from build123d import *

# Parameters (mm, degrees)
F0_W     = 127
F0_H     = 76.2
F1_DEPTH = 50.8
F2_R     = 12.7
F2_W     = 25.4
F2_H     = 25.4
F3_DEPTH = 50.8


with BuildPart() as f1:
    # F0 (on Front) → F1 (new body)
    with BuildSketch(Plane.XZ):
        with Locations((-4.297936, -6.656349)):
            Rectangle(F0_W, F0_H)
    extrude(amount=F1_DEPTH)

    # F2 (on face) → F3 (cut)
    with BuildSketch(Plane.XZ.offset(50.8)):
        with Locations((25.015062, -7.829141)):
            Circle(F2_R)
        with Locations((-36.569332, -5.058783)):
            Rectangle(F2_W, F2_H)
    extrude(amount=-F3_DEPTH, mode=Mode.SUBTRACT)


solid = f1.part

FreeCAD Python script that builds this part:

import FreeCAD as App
import Part
import Sketcher
Q = App.Units.Quantity

doc = App.newDocument("Part")
params = doc.addObject("Spreadsheet::Sheet", "Params")
for row, (alias, value) in enumerate([
    ("sketch1_width", "5 in"),
    ("sketch1_height", "3 in"),
    ("pad1_length", "2 in"),
    ("sketch2_diameter", "1 in"),
    ("sketch2_width", "1 in"),
    ("pocket1_length", "2 in"),
], start=1):
    params.set(f"A{row}", alias)
    params.set(f"B{row}", "=" + value)
    params.setAlias(f"B{row}", alias)

body = doc.addObject("PartDesign::Body", "Body")

sketch1 = doc.addObject("Sketcher::SketchObject", "Sketch")
body.addObject(sketch1)
sketch1.AttachmentSupport = (doc.XZ_Plane, [""])
sketch1.MapMode = "FlatFace"
sketch1.addGeometry([
    Part.LineSegment(App.Vector(-67.797936, 31.443651, 0), App.Vector(-67.797936, -44.756349, 0)),
    Part.LineSegment(App.Vector(-67.797936, -44.756349, 0), App.Vector(59.202064, -44.756349, 0)),
    Part.LineSegment(App.Vector(59.202064, -44.756349, 0), App.Vector(59.202064, 31.443651, 0)),
    Part.LineSegment(App.Vector(59.202064, 31.443651, 0), App.Vector(-67.797936, 31.443651, 0)),
], False)
sketch1.addConstraint([
    Sketcher.Constraint("Coincident", 0, 2, 1, 1),
    Sketcher.Constraint("Coincident", 1, 2, 2, 1),
    Sketcher.Constraint("Coincident", 2, 2, 3, 1),
    Sketcher.Constraint("Coincident", 3, 2, 0, 1),
    Sketcher.Constraint("Vertical", 0),
    Sketcher.Constraint("Horizontal", 1),
    Sketcher.Constraint("Vertical", 2),
    Sketcher.Constraint("Horizontal", 3),
    Sketcher.Constraint("DistanceX", 1, 1, 1, 2, Q("5 in")),
    Sketcher.Constraint("DistanceY", 0, 2, 0, 1, Q("3 in")),
    Sketcher.Constraint("DistanceY", 0, 2, -1, 1, Q("44.756349 mm")),
    Sketcher.Constraint("DistanceX", 0, 2, -1, 1, Q("67.797936 mm")),
])
sketch1.setExpression("Constraints[8]", "Params.sketch1_width")
sketch1.setExpression("Constraints[9]", "Params.sketch1_height")
pad1 = doc.addObject("PartDesign::Pad", "Pad")
body.addObject(pad1)
pad1.Profile = sketch1
pad1.setExpression("Length", "Params.pad1_length")

sketch2 = doc.addObject("Sketcher::SketchObject", "Sketch001")
body.addObject(sketch2)
sketch2.AttachmentSupport = (doc.XZ_Plane, [""])
sketch2.MapMode = "FlatFace"
sketch2.AttachmentOffset = App.Placement(App.Vector(0, 0, 2 * 25.4), App.Rotation())
sketch2.addGeometry([
    Part.Circle(App.Vector(25.015062, -7.829141, 0), App.Vector(0, 0, 1), 12.7),
    Part.LineSegment(App.Vector(-49.269332, 7.641217, 0), App.Vector(-49.269332, -17.758783, 0)),
    Part.LineSegment(App.Vector(-49.269332, -17.758783, 0), App.Vector(-23.869332, -17.758783, 0)),
    Part.LineSegment(App.Vector(-23.869332, -17.758783, 0), App.Vector(-23.869332, 7.641217, 0)),
    Part.LineSegment(App.Vector(-23.869332, 7.641217, 0), App.Vector(-49.269332, 7.641217, 0)),
], False)
sketch2.addConstraint([
    Sketcher.Constraint("Coincident", 1, 2, 2, 1),
    Sketcher.Constraint("Coincident", 2, 2, 3, 1),
    Sketcher.Constraint("Coincident", 3, 2, 4, 1),
    Sketcher.Constraint("Coincident", 4, 2, 1, 1),
    Sketcher.Constraint("Vertical", 1),
    Sketcher.Constraint("Horizontal", 2),
    Sketcher.Constraint("Vertical", 3),
    Sketcher.Constraint("Horizontal", 4),
    Sketcher.Constraint("Equal", 4, 1),
    Sketcher.Constraint("Diameter", 0, Q("1 in")),
    Sketcher.Constraint("DistanceX", 2, 1, 2, 2, Q("1 in")),
    Sketcher.Constraint("DistanceY", 0, 3, -1, 1, Q("7.829141 mm")),
    Sketcher.Constraint("DistanceX", 2, 2, -1, 1, Q("23.869332 mm")),
    Sketcher.Constraint("DistanceY", 0, 3, 3, 2, Q("15.470358 mm")),
    Sketcher.Constraint("DistanceX", -1, 1, 0, 3, Q("25.015062 mm")),
])
sketch2.setExpression("Constraints[9]", "Params.sketch2_diameter")
sketch2.setExpression("Constraints[10]", "Params.sketch2_width")
pocket1 = doc.addObject("PartDesign::Pocket", "Pocket")
body.addObject(pocket1)
pocket1.Profile = sketch2
pocket1.setExpression("Length", "Params.pocket1_length")

doc.recompute()
